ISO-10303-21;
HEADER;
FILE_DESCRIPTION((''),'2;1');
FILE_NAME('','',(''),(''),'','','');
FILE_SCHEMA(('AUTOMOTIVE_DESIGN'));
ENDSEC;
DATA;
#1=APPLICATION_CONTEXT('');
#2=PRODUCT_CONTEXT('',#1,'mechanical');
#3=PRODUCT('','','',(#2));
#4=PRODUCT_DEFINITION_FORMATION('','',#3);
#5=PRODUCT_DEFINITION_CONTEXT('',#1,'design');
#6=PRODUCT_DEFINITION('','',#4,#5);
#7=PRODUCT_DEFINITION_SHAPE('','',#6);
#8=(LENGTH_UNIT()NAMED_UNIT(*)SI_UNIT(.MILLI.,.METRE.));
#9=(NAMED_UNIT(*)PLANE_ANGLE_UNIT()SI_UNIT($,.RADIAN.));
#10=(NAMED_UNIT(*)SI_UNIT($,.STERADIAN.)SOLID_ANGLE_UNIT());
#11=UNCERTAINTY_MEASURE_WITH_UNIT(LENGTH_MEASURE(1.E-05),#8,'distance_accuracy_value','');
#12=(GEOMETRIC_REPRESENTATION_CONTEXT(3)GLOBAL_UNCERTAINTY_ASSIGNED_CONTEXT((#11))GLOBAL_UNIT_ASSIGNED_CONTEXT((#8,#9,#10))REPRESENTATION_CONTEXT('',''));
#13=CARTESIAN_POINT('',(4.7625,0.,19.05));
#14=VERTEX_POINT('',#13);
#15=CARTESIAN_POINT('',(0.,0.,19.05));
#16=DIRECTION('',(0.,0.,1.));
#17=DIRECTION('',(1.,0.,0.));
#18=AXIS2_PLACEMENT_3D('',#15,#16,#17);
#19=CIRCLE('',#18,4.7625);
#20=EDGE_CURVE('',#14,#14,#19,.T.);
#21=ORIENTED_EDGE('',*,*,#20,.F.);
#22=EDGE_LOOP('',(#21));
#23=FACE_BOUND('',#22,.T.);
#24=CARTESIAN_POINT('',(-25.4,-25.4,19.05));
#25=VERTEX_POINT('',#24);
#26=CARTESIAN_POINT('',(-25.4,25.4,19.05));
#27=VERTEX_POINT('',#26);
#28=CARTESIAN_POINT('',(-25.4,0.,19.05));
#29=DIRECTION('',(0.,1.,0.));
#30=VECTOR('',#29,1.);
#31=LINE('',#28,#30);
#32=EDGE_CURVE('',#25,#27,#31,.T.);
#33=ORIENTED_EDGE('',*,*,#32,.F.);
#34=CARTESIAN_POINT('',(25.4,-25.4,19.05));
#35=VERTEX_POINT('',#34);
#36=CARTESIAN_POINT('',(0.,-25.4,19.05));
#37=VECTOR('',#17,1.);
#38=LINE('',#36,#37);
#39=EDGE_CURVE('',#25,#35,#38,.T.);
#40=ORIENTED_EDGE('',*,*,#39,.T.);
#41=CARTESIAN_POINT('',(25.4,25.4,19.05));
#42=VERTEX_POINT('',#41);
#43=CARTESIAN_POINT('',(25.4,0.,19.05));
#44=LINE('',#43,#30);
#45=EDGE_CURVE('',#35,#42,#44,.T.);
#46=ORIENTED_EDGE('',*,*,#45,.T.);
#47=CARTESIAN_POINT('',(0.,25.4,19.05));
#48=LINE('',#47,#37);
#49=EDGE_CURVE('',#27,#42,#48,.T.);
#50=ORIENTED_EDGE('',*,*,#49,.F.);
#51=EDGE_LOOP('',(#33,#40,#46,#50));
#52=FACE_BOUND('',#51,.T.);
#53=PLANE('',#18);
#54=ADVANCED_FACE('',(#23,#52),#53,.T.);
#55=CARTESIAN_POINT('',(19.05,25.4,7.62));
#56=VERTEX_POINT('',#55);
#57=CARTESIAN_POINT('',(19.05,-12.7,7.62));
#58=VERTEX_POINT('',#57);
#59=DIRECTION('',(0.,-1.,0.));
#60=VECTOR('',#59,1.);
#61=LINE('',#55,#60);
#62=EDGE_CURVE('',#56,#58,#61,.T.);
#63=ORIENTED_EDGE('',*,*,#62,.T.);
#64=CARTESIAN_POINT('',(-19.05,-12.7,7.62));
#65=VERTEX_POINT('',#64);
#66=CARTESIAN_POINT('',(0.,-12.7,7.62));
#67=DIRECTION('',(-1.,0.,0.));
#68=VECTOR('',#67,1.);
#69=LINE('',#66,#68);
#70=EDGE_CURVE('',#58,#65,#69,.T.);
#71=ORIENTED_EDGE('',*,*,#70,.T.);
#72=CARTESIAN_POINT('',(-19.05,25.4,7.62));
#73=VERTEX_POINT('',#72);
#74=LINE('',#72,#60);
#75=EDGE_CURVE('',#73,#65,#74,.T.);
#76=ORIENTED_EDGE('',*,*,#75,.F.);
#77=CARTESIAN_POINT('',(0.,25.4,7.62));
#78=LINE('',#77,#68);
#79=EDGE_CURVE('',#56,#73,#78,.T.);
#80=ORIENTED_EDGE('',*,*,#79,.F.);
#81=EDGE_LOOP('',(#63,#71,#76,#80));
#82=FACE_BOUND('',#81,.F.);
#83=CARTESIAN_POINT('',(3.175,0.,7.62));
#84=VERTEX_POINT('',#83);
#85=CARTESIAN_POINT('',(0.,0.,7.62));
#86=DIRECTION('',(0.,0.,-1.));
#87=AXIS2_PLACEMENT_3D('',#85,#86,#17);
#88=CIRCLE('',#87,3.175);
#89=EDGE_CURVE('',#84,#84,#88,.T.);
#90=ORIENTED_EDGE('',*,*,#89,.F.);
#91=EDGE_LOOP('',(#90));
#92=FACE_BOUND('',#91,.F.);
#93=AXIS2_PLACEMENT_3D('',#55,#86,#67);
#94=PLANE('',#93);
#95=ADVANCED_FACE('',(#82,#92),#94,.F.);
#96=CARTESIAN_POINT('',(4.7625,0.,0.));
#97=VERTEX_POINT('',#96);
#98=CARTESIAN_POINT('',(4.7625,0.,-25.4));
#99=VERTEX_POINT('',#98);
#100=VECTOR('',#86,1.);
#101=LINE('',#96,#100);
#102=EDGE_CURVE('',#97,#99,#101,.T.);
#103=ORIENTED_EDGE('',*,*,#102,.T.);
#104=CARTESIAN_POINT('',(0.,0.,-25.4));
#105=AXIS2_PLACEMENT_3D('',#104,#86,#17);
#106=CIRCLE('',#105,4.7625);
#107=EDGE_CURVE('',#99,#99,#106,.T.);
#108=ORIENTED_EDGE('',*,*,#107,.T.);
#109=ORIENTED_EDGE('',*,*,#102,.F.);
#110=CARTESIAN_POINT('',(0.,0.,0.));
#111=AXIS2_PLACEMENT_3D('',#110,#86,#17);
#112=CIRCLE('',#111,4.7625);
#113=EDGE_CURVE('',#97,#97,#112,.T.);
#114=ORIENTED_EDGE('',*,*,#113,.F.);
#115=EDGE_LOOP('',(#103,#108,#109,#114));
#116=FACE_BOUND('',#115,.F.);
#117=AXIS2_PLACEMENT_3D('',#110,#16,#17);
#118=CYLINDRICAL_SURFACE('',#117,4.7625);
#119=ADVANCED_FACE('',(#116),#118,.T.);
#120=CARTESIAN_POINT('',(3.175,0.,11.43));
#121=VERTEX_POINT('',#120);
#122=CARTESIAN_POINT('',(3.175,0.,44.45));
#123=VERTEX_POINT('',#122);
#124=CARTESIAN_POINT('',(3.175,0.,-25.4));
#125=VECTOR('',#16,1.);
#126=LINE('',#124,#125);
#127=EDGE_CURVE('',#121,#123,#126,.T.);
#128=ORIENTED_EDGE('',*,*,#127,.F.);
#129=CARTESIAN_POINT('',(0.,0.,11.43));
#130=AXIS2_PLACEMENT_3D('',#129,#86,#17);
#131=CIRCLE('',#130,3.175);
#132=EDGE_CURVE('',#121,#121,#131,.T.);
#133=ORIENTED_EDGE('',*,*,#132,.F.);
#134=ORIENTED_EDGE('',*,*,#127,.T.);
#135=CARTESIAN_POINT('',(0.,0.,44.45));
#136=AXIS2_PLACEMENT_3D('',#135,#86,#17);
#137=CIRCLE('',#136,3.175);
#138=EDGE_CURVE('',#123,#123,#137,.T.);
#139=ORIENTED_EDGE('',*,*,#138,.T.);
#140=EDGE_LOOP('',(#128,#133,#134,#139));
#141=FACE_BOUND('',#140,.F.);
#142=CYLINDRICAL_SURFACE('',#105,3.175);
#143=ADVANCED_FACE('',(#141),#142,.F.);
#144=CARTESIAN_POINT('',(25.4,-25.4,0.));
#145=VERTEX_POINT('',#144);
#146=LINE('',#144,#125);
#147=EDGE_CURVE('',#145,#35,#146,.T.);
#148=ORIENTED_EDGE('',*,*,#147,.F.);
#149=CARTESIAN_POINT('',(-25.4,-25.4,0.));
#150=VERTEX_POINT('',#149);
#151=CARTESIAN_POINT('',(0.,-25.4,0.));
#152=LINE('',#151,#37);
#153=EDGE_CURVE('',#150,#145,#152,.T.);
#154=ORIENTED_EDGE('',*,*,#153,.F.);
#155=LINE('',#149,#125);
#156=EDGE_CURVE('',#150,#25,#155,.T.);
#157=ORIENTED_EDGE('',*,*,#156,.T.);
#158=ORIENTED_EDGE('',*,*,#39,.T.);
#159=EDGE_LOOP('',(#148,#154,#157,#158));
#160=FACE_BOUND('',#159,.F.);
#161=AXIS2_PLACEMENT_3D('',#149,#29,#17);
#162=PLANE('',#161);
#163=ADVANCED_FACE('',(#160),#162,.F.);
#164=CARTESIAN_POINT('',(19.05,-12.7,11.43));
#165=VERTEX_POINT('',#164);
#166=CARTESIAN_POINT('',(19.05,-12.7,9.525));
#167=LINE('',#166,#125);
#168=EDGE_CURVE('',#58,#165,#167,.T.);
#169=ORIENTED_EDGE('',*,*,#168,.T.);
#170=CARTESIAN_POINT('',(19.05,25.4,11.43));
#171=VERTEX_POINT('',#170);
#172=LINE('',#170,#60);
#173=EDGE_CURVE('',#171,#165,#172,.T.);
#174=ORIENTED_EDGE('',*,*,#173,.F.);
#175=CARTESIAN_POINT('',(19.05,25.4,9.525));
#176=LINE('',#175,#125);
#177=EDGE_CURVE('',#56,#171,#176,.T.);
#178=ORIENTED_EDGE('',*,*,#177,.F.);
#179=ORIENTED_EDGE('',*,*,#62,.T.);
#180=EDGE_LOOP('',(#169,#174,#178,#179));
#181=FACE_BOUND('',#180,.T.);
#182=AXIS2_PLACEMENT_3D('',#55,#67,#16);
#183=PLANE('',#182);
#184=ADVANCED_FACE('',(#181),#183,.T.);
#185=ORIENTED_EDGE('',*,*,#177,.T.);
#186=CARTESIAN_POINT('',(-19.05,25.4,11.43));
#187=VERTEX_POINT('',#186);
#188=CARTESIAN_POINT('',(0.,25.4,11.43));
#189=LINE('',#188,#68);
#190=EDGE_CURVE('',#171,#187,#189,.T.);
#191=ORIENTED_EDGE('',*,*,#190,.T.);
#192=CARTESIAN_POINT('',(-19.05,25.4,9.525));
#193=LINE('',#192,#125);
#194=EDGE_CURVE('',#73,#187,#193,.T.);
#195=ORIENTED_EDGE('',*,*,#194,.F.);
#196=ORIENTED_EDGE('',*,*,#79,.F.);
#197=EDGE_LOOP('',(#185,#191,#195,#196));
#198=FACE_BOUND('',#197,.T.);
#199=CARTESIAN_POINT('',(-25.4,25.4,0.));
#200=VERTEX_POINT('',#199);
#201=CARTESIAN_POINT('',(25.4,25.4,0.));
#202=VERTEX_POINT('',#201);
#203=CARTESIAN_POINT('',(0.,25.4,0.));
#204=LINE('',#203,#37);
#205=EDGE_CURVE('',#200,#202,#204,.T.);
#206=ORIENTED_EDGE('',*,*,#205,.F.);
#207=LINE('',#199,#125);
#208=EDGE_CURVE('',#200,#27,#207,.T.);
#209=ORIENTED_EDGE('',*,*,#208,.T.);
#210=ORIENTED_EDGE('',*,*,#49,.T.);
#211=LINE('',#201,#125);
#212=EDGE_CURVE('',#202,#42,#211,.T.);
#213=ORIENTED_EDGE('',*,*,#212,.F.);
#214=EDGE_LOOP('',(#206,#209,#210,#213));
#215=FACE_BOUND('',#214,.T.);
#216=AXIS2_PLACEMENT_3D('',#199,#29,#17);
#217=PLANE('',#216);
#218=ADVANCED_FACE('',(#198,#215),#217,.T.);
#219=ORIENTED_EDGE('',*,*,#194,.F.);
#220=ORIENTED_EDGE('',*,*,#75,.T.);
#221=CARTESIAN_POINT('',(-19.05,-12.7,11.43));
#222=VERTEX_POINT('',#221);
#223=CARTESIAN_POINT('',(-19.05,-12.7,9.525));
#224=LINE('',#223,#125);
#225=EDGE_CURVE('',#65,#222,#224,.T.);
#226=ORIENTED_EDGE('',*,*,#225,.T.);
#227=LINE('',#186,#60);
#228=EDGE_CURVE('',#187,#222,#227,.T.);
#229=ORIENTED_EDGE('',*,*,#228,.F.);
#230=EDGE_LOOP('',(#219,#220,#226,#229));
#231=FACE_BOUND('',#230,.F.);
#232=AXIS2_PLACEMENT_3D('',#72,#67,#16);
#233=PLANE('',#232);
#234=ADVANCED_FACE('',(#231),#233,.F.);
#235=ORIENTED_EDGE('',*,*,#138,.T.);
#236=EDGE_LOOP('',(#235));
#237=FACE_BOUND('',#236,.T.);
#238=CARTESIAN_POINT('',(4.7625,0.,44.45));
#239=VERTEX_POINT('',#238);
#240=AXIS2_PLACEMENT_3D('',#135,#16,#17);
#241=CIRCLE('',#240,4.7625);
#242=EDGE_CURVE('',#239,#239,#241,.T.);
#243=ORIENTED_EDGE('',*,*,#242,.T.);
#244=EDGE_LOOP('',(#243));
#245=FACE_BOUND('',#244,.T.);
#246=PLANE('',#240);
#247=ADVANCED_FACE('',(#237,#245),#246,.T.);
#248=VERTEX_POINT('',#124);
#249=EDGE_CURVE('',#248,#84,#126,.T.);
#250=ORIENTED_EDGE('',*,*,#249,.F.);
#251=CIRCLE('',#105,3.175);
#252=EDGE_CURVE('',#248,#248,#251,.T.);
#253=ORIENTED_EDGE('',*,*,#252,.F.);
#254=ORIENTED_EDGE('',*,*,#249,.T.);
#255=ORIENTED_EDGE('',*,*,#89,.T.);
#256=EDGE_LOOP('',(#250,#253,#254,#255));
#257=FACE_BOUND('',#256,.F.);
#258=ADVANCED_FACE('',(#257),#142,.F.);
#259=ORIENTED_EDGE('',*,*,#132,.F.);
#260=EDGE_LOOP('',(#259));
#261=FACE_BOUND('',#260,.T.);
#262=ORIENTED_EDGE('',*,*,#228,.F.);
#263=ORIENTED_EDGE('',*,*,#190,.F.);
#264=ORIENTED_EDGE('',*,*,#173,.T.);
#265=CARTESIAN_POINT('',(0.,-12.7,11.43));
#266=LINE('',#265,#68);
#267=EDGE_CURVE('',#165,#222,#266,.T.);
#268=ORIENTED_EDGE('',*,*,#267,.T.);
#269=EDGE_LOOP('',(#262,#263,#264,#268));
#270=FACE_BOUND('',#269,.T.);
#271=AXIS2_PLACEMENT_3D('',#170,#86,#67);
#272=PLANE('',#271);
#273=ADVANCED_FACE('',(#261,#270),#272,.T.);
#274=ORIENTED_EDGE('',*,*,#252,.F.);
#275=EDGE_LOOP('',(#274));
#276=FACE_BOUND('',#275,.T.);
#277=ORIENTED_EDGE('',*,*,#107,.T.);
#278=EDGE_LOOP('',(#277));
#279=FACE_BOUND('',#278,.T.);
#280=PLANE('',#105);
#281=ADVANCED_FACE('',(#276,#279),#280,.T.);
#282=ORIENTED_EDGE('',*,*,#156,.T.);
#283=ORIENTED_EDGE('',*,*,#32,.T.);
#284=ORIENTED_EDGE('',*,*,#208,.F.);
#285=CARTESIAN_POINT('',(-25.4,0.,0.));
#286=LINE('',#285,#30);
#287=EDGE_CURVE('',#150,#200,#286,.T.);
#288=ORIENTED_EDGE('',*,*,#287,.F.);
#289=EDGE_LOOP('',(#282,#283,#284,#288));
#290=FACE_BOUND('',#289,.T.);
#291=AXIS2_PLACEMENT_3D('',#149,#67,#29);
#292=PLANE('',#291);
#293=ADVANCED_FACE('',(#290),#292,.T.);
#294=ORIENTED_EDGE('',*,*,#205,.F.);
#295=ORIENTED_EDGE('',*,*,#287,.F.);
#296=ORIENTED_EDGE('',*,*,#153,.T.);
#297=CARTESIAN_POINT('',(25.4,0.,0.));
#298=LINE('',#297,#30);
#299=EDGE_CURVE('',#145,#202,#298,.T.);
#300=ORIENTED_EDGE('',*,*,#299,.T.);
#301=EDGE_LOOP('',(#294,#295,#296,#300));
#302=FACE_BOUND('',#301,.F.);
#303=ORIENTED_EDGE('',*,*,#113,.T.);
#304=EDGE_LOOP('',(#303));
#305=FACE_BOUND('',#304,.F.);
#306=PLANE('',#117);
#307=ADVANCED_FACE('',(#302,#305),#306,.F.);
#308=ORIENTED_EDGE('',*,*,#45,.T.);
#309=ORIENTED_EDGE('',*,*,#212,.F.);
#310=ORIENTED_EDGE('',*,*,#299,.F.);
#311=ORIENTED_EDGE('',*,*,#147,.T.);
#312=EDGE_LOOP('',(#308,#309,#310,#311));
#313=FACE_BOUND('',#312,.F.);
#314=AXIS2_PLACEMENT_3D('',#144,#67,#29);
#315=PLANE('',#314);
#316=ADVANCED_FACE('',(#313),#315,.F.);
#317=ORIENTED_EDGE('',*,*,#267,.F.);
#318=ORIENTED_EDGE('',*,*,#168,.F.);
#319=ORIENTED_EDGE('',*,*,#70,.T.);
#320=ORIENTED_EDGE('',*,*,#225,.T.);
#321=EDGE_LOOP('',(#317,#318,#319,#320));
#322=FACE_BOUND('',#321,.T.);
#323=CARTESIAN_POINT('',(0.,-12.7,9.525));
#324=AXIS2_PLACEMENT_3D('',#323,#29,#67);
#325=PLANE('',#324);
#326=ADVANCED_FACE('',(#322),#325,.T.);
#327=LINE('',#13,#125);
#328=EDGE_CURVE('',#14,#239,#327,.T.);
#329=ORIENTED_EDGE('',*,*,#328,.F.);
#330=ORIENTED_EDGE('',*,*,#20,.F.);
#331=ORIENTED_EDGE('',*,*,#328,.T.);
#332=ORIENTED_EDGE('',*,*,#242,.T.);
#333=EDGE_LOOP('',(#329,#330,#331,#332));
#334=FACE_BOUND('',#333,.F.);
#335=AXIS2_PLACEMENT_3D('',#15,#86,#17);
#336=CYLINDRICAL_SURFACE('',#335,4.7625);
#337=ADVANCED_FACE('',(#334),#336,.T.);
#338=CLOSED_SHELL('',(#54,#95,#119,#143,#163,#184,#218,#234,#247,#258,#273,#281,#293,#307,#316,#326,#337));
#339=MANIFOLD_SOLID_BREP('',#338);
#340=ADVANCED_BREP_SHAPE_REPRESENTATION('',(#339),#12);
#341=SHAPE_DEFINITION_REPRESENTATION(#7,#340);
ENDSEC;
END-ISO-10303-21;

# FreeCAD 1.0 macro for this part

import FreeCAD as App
import Part
import Sketcher
from FreeCAD import Vector
Q = App.Units.Quantity

doc = App.newDocument("Part")
body = doc.addObject("PartDesign::Body", "Body")

# Sketch on XY plane
sketch1 = doc.addObject("Sketcher::SketchObject", "Sketch")
body.addObject(sketch1)
sketch1.AttachmentSupport = (doc.XY_Plane, [""])
sketch1.MapMode = "FlatFace"
sketch1.addGeometry([
    Part.LineSegment(Vector(-25, 25, 0), Vector(-25, -25, 0)),
    Part.LineSegment(Vector(-25, -25, 0), Vector(25, -25, 0)),
    Part.LineSegment(Vector(25, -25, 0), Vector(25, 25, 0)),
    Part.LineSegment(Vector(25, 25, 0), Vector(-25, 25, 0)),
], False)
sketch1.addConstraint([
    Sketcher.Constraint("Coincident", 0, 2, 1, 1),
    Sketcher.Constraint("Coincident", 1, 2, 2, 1),
    Sketcher.Constraint("Coincident", 2, 2, 3, 1),
    Sketcher.Constraint("Coincident", 3, 2, 0, 1),
    Sketcher.Constraint("Vertical", 0),
    Sketcher.Constraint("Horizontal", 1),
    Sketcher.Constraint("Vertical", 2),
    Sketcher.Constraint("Horizontal", 3),
    Sketcher.Constraint("Symmetric", 0, 2, 2, 2, -1, 1),
    Sketcher.Constraint("Equal", 3, 0),
    Sketcher.Constraint("DistanceX", 1, 1, 1, 2, Q("2 in")),
])
pad1 = doc.addObject("PartDesign::Pad", "Pad")
body.addObject(pad1)
pad1.Profile = sketch1
pad1.Length = Q("0.75 in")

# Sketch on XZ plane
sketch2 = doc.addObject("Sketcher::SketchObject", "Sketch001")
body.addObject(sketch2)
sketch2.AttachmentSupport = (doc.XZ_Plane, [""])
sketch2.MapMode = "FlatFace"
sketch2.AttachmentOffset = App.Placement(Vector(0, 0, -1 * 25.4), App.Rotation())
sketch2.addGeometry([
    Part.LineSegment(Vector(19.1, 11.4, 0), Vector(19.1, 7.6, 0)),
    Part.LineSegment(Vector(19.1, 7.6, 0), Vector(-19.1, 7.6, 0)),
    Part.LineSegment(Vector(-19.1, 7.6, 0), Vector(-19.1, 11.4, 0)),
    Part.LineSegment(Vector(-19.1, 11.4, 0), Vector(19.1, 11.4, 0)),
], False)
sketch2.addConstraint([
    Sketcher.Constraint("Coincident", 0, 2, 1, 1),
    Sketcher.Constraint("Coincident", 1, 2, 2, 1),
    Sketcher.Constraint("Coincident", 2, 2, 3, 1),
    Sketcher.Constraint("Coincident", 3, 2, 0, 1),
    Sketcher.Constraint("Vertical", 0),
    Sketcher.Constraint("Horizontal", 1),
    Sketcher.Constraint("Vertical", 2),
    Sketcher.Constraint("Horizontal", 3),
    Sketcher.Constraint("DistanceX", 1, 2, 1, 1, Q("1.5 in")),
    Sketcher.Constraint("DistanceY", 0, 2, 0, 1, Q("0.15 in")),
    Sketcher.Constraint("DistanceY", -1, 1, 0, 2, Q("0.3 in")),
    Sketcher.Constraint("DistanceX", -1, 1, 0, 2, Q("0.75 in")),
])
pocket1 = doc.addObject("PartDesign::Pocket", "Pocket")
body.addObject(pocket1)
pocket1.Profile = sketch2
pocket1.Length = Q("1.5 in")
pocket1.Reversed = True

# Sketch on XY plane
sketch3 = doc.addObject("Sketcher::SketchObject", "Sketch002")
body.addObject(sketch3)
sketch3.AttachmentSupport = (doc.XY_Plane, [""])
sketch3.MapMode = "FlatFace"
sketch3.AttachmentOffset = App.Placement(Vector(0, 0, 0.75 * 25.4), App.Rotation())
sketch3.addGeometry(Part.Circle(Vector(0, 0, 0), Vector(0, 0, 1), 4.8), False)
sketch3.addConstraint([
    Sketcher.Constraint("Coincident", 0, 3, -1, 1),
    Sketcher.Constraint("Diameter", 0, Q("0.375 in")),
])
pad2 = doc.addObject("PartDesign::Pad", "Pad001")
body.addObject(pad2)
pad2.Profile = sketch3
pad2.Length = Q("1 in")

# Sketch on XY plane
sketch4 = doc.addObject("Sketcher::SketchObject", "Sketch003")
body.addObject(sketch4)
sketch4.AttachmentSupport = (doc.XY_Plane, [""])
sketch4.MapMode = "FlatFace"
sketch4.addGeometry(Part.Circle(Vector(0, 0, 0), Vector(0, 0, 1), 4.8), False)
sketch4.addConstraint([
    Sketcher.Constraint("Coincident", 0, 3, -1, 1),
    Sketcher.Constraint("Diameter", 0, Q("0.375 in")),
])
pad3 = doc.addObject("PartDesign::Pad", "Pad002")
body.addObject(pad3)
pad3.Profile = sketch4
pad3.Length = Q("1 in")
pad3.Reversed = True

# Sketch on XY plane
sketch5 = doc.addObject("Sketcher::SketchObject", "Sketch004")
body.addObject(sketch5)
sketch5.AttachmentSupport = (doc.XY_Plane, [""])
sketch5.MapMode = "FlatFace"
sketch5.AttachmentOffset = App.Placement(Vector(0, 0, -1 * 25.4), App.Rotation())
sketch5.addGeometry(Part.Circle(Vector(0, 0, 0), Vector(0, 0, 1), 3.2), False)
sketch5.addConstraint([
    Sketcher.Constraint("Coincident", 0, 3, -1, 1),
    Sketcher.Constraint("Diameter", 0, Q("0.25 in")),
])
pocket2 = doc.addObject("PartDesign::Pocket", "Pocket001")
body.addObject(pocket2)
pocket2.Profile = sketch5
pocket2.Length = Q("2.94 in")
pocket2.Reversed = True

doc.recompute()
